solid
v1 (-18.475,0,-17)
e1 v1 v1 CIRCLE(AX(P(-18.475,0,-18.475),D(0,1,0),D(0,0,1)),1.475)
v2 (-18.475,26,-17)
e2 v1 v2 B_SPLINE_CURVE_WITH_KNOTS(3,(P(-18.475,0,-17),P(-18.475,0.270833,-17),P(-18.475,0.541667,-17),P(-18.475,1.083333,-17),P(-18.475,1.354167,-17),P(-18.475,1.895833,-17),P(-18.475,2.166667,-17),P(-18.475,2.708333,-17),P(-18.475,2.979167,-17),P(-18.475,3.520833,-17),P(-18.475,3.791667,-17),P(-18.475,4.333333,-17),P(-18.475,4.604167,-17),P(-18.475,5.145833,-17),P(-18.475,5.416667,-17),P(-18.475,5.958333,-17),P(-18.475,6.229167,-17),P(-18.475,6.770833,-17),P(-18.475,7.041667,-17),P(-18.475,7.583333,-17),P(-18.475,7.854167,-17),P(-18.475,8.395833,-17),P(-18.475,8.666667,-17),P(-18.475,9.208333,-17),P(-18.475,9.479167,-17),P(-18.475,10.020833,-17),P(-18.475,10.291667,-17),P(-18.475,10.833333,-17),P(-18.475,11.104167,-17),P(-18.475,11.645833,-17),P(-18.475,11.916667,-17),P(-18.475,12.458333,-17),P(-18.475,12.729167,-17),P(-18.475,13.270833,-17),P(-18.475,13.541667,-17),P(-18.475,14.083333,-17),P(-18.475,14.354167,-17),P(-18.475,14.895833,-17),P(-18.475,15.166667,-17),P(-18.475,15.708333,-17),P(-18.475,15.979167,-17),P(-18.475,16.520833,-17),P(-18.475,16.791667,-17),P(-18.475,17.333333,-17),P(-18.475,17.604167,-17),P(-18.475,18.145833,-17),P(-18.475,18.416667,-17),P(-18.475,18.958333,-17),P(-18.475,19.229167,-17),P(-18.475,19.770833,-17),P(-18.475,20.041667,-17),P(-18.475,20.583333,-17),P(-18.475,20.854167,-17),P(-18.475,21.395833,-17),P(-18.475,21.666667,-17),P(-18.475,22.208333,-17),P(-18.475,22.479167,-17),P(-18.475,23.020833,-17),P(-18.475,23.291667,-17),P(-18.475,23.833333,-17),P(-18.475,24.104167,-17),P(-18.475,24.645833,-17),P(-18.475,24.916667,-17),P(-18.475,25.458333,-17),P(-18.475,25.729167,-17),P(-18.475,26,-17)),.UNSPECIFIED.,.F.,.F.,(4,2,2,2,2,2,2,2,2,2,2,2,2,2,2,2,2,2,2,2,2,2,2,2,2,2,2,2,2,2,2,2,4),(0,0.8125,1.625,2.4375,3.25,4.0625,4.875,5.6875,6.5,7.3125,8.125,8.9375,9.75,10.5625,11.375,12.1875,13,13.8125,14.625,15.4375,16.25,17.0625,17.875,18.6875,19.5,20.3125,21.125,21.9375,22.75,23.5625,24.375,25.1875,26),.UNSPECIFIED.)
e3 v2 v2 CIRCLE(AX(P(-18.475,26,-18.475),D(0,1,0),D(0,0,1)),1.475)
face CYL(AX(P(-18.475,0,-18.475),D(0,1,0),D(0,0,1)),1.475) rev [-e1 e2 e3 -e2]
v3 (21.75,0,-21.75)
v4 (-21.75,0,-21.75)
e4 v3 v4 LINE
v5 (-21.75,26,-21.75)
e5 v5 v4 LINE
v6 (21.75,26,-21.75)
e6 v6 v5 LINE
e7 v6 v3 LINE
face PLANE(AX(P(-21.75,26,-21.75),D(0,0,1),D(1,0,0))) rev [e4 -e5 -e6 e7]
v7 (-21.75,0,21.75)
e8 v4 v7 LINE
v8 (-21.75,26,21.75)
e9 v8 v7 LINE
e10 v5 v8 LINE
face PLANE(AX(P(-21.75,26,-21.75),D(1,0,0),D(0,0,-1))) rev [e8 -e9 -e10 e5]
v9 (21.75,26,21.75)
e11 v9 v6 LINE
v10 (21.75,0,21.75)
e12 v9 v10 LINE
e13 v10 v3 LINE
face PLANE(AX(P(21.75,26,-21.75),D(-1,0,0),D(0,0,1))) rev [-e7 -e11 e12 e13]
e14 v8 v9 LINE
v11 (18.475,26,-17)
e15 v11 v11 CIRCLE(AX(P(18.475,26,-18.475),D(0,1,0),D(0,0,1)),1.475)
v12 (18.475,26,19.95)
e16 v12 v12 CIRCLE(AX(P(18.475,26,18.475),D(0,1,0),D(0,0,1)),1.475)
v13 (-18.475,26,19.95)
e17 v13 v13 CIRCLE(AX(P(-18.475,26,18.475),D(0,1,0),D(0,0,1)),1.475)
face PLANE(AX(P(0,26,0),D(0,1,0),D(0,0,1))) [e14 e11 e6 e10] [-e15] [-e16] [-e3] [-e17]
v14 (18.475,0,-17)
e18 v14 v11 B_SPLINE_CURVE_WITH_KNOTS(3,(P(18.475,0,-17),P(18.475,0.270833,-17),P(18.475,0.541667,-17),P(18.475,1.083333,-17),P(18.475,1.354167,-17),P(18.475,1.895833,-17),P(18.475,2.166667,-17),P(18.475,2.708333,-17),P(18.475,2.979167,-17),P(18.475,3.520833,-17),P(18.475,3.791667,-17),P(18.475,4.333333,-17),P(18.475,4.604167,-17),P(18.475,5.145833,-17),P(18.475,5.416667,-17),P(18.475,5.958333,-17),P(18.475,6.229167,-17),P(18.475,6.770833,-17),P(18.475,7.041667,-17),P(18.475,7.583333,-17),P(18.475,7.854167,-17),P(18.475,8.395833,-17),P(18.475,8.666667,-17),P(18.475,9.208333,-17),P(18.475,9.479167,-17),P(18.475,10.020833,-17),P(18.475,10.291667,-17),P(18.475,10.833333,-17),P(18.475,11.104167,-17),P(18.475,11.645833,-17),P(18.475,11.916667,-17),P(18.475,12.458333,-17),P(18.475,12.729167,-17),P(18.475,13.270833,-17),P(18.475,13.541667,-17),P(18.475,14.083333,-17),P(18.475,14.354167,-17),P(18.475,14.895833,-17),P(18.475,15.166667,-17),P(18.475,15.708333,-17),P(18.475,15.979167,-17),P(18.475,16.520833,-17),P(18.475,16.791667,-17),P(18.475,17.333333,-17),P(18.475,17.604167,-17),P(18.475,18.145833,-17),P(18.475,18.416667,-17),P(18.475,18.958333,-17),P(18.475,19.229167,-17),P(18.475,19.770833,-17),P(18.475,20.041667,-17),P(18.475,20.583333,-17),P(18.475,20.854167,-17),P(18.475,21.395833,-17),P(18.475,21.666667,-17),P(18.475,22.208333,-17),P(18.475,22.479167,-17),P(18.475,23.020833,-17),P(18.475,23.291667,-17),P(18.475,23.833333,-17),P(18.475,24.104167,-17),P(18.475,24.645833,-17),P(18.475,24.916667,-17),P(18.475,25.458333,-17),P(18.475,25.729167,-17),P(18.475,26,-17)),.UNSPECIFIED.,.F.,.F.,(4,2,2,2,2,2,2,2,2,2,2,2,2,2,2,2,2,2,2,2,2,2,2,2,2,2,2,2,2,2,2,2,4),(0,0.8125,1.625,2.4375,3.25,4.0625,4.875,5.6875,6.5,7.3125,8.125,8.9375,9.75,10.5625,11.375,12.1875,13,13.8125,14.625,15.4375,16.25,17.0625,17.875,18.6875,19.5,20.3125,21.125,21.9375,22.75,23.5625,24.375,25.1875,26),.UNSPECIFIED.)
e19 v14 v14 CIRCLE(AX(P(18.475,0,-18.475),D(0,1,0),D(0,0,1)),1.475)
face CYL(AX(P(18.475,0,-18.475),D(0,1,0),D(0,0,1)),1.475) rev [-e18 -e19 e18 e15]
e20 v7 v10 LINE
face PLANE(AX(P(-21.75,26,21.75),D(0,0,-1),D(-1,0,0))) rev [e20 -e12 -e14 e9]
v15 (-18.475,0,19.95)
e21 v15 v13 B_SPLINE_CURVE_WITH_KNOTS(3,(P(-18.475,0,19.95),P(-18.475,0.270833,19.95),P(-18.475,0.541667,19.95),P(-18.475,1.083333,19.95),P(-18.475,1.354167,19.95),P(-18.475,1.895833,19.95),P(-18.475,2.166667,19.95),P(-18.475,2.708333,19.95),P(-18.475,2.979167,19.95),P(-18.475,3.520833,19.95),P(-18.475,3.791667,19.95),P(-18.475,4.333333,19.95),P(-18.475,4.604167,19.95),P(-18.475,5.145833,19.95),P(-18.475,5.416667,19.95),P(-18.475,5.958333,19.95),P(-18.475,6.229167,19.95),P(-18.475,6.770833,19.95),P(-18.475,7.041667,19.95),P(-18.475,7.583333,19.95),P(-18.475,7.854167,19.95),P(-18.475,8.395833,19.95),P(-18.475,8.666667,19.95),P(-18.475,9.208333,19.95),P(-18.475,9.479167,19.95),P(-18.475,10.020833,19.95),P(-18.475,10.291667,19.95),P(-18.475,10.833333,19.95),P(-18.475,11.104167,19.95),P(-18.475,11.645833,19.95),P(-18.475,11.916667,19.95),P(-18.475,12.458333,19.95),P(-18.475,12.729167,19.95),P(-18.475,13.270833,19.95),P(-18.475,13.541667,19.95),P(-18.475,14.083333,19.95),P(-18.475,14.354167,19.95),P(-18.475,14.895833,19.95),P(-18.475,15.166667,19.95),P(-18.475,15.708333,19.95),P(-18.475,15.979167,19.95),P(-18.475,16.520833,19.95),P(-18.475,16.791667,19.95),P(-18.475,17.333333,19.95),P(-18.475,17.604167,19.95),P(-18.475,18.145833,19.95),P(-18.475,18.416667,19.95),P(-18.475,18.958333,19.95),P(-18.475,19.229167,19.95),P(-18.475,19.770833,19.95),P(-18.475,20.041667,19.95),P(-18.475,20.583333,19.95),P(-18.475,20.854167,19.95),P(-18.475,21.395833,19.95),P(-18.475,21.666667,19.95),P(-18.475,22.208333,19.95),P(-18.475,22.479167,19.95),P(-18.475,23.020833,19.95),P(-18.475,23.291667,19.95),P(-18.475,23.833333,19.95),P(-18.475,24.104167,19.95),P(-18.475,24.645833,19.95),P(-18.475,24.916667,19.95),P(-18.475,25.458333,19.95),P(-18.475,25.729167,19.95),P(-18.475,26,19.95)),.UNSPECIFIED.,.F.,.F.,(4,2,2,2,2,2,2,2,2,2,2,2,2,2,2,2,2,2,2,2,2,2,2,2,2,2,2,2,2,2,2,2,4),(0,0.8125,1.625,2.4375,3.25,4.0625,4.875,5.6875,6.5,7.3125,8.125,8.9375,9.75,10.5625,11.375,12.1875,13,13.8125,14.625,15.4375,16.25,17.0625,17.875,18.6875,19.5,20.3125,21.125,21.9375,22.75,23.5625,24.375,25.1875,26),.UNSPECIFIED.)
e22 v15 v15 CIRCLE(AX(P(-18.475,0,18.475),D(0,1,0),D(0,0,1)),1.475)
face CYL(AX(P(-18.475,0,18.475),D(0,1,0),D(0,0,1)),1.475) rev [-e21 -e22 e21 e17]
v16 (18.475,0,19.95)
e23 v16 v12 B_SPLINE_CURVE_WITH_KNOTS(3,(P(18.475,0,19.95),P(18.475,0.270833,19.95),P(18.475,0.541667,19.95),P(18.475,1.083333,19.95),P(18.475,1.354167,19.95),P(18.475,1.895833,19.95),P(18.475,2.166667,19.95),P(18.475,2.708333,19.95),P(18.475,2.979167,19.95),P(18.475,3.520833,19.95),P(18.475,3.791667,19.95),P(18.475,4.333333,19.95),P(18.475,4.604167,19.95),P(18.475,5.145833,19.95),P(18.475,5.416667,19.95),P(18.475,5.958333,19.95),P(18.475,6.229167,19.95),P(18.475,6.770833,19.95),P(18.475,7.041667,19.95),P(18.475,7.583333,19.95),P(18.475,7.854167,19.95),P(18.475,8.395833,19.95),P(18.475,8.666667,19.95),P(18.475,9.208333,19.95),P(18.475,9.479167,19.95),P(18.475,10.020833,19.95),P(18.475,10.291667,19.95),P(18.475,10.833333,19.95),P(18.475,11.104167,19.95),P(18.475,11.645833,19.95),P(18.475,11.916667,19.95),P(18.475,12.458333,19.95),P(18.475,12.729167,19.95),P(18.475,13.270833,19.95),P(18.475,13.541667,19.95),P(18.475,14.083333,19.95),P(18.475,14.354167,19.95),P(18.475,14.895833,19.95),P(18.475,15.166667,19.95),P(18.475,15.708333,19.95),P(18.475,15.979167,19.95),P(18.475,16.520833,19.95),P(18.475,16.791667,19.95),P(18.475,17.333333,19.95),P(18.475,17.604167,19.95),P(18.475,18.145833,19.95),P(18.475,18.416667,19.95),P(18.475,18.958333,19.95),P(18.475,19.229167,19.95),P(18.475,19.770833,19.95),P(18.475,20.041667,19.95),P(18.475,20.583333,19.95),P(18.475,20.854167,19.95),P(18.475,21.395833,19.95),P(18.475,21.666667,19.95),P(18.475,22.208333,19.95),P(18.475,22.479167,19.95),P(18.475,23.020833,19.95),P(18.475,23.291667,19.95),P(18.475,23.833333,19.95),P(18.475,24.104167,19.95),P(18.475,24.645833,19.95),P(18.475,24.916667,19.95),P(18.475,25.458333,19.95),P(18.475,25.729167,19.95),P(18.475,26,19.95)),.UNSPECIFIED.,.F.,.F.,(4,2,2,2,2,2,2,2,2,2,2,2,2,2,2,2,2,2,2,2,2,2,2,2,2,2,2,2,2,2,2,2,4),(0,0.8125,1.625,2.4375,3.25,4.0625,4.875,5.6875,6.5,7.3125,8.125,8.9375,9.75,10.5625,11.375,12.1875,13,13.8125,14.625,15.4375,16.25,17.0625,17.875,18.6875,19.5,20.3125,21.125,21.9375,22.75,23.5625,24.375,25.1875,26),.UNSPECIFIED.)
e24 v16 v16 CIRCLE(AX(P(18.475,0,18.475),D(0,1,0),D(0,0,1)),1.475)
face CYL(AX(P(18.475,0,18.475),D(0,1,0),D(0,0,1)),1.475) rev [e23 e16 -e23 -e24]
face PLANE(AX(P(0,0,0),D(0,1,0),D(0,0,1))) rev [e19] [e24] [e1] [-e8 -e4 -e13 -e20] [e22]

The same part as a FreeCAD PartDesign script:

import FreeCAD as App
import Part
import Sketcher
from FreeCAD import Vector


def add_polygon(sketch, points):
    """Adds a closed chain of lines whose ends are joined by coincident constraints."""
    first, n = sketch.GeometryCount, len(points)
    for a, b in zip(points, points[1:] + points[:1]):
        sketch.addGeometry(Part.LineSegment(App.Vector(*a, 0), App.Vector(*b, 0)), False)
    for i in range(n):
        sketch.addConstraint(Sketcher.Constraint("Coincident", first + i, 2, first + (i + 1) % n, 1))

doc = App.newDocument("Part")
params = doc.addObject("Spreadsheet::Sheet", "Params")
for row, (alias, value) in enumerate([
    ("sketch1_width", "43.5 mm"),
    ("pad1_length", "26 mm"),
    ("sketch2_diameter", "2.95 mm"),
], start=1):
    params.set(f"A{row}", alias)
    params.set(f"B{row}", "=" + value)
    params.setAlias(f"B{row}", alias)

body = doc.addObject("PartDesign::Body", "Body")

# Sketch on XZ plane
sketch1 = body.newObject("Sketcher::SketchObject", "Sketch")
sketch1.AttachmentSupport = (doc.getObject("XZ_Plane"), [""])
sketch1.MapMode = "FlatFace"
add_polygon(sketch1, [(-22, -22), (-22, 22), (22, 22), (22, -22)])  # lines 0-3
sketch1.addConstraint([
    Sketcher.Constraint("Vertical", 0),
    Sketcher.Constraint("Horizontal", 1),
    Sketcher.Constraint("Vertical", 2),
    Sketcher.Constraint("Horizontal", 3),
    Sketcher.Constraint("Symmetric", 0, 2, 2, 2, -1, 1),
    Sketcher.Constraint("Equal", 3, 0),
    Sketcher.Constraint("DistanceX", 1, 1, 1, 2, 43.5),
])
sketch1.setExpression("Constraints[10]", "Params.sketch1_width")
pad1 = body.newObject("PartDesign::Pad", "Pad")
pad1.Profile = sketch1
pad1.setExpression("Length", "Params.pad1_length")
pad1.Reversed = True

# Sketch on XZ plane
sketch2 = body.newObject("Sketcher::SketchObject", "Sketch001")
sketch2.AttachmentSupport = (doc.getObject("XZ_Plane"), [""])
sketch2.MapMode = "FlatFace"
sketch2.AttachmentOffset = App.Placement(Vector(0, 0, -26), App.Rotation())
sketch2.addGeometry([
    Part.Circle(Vector(-18.5, -18.5, 0), Vector(0, 0, 1), 1.5),
    Part.Circle(Vector(-18.5, 18.5, 0), Vector(0, 0, 1), 1.5),
    Part.Circle(Vector(18.5, 18.5, 0), Vector(0, 0, 1), 1.5),
    Part.Circle(Vector(18.5, -18.5, 0), Vector(0, 0, 1), 1.5),
], False)
sketch2.addConstraint([
    Sketcher.Constraint("Equal", 0, 1),
    Sketcher.Constraint("Equal", 1, 2),
    Sketcher.Constraint("Equal", 2, 3),
    Sketcher.Constraint("Symmetric", 0, 3, 2, 3, -1, 1),
    Sketcher.Constraint("Symmetric", 1, 3, 3, 3, -1, 1),
    Sketcher.Constraint("Symmetric", 1, 3, 2, 3, -2),
    Sketcher.Constraint("Diameter", 0, 2.95),
    Sketcher.Constraint("DistanceY", 0, 3, 1, 3, 36.95),
    Sketcher.Constraint("DistanceX", 1, 3, 2, 3, 36.95),
])
sketch2.setExpression("Constraints[6]", "Params.sketch2_diameter")
pocket1 = body.newObject("PartDesign::Pocket", "Pocket")
pocket1.Profile = sketch2
pocket1.Type = "ThroughAll"
pocket1.Reversed = True

doc.recompute()
